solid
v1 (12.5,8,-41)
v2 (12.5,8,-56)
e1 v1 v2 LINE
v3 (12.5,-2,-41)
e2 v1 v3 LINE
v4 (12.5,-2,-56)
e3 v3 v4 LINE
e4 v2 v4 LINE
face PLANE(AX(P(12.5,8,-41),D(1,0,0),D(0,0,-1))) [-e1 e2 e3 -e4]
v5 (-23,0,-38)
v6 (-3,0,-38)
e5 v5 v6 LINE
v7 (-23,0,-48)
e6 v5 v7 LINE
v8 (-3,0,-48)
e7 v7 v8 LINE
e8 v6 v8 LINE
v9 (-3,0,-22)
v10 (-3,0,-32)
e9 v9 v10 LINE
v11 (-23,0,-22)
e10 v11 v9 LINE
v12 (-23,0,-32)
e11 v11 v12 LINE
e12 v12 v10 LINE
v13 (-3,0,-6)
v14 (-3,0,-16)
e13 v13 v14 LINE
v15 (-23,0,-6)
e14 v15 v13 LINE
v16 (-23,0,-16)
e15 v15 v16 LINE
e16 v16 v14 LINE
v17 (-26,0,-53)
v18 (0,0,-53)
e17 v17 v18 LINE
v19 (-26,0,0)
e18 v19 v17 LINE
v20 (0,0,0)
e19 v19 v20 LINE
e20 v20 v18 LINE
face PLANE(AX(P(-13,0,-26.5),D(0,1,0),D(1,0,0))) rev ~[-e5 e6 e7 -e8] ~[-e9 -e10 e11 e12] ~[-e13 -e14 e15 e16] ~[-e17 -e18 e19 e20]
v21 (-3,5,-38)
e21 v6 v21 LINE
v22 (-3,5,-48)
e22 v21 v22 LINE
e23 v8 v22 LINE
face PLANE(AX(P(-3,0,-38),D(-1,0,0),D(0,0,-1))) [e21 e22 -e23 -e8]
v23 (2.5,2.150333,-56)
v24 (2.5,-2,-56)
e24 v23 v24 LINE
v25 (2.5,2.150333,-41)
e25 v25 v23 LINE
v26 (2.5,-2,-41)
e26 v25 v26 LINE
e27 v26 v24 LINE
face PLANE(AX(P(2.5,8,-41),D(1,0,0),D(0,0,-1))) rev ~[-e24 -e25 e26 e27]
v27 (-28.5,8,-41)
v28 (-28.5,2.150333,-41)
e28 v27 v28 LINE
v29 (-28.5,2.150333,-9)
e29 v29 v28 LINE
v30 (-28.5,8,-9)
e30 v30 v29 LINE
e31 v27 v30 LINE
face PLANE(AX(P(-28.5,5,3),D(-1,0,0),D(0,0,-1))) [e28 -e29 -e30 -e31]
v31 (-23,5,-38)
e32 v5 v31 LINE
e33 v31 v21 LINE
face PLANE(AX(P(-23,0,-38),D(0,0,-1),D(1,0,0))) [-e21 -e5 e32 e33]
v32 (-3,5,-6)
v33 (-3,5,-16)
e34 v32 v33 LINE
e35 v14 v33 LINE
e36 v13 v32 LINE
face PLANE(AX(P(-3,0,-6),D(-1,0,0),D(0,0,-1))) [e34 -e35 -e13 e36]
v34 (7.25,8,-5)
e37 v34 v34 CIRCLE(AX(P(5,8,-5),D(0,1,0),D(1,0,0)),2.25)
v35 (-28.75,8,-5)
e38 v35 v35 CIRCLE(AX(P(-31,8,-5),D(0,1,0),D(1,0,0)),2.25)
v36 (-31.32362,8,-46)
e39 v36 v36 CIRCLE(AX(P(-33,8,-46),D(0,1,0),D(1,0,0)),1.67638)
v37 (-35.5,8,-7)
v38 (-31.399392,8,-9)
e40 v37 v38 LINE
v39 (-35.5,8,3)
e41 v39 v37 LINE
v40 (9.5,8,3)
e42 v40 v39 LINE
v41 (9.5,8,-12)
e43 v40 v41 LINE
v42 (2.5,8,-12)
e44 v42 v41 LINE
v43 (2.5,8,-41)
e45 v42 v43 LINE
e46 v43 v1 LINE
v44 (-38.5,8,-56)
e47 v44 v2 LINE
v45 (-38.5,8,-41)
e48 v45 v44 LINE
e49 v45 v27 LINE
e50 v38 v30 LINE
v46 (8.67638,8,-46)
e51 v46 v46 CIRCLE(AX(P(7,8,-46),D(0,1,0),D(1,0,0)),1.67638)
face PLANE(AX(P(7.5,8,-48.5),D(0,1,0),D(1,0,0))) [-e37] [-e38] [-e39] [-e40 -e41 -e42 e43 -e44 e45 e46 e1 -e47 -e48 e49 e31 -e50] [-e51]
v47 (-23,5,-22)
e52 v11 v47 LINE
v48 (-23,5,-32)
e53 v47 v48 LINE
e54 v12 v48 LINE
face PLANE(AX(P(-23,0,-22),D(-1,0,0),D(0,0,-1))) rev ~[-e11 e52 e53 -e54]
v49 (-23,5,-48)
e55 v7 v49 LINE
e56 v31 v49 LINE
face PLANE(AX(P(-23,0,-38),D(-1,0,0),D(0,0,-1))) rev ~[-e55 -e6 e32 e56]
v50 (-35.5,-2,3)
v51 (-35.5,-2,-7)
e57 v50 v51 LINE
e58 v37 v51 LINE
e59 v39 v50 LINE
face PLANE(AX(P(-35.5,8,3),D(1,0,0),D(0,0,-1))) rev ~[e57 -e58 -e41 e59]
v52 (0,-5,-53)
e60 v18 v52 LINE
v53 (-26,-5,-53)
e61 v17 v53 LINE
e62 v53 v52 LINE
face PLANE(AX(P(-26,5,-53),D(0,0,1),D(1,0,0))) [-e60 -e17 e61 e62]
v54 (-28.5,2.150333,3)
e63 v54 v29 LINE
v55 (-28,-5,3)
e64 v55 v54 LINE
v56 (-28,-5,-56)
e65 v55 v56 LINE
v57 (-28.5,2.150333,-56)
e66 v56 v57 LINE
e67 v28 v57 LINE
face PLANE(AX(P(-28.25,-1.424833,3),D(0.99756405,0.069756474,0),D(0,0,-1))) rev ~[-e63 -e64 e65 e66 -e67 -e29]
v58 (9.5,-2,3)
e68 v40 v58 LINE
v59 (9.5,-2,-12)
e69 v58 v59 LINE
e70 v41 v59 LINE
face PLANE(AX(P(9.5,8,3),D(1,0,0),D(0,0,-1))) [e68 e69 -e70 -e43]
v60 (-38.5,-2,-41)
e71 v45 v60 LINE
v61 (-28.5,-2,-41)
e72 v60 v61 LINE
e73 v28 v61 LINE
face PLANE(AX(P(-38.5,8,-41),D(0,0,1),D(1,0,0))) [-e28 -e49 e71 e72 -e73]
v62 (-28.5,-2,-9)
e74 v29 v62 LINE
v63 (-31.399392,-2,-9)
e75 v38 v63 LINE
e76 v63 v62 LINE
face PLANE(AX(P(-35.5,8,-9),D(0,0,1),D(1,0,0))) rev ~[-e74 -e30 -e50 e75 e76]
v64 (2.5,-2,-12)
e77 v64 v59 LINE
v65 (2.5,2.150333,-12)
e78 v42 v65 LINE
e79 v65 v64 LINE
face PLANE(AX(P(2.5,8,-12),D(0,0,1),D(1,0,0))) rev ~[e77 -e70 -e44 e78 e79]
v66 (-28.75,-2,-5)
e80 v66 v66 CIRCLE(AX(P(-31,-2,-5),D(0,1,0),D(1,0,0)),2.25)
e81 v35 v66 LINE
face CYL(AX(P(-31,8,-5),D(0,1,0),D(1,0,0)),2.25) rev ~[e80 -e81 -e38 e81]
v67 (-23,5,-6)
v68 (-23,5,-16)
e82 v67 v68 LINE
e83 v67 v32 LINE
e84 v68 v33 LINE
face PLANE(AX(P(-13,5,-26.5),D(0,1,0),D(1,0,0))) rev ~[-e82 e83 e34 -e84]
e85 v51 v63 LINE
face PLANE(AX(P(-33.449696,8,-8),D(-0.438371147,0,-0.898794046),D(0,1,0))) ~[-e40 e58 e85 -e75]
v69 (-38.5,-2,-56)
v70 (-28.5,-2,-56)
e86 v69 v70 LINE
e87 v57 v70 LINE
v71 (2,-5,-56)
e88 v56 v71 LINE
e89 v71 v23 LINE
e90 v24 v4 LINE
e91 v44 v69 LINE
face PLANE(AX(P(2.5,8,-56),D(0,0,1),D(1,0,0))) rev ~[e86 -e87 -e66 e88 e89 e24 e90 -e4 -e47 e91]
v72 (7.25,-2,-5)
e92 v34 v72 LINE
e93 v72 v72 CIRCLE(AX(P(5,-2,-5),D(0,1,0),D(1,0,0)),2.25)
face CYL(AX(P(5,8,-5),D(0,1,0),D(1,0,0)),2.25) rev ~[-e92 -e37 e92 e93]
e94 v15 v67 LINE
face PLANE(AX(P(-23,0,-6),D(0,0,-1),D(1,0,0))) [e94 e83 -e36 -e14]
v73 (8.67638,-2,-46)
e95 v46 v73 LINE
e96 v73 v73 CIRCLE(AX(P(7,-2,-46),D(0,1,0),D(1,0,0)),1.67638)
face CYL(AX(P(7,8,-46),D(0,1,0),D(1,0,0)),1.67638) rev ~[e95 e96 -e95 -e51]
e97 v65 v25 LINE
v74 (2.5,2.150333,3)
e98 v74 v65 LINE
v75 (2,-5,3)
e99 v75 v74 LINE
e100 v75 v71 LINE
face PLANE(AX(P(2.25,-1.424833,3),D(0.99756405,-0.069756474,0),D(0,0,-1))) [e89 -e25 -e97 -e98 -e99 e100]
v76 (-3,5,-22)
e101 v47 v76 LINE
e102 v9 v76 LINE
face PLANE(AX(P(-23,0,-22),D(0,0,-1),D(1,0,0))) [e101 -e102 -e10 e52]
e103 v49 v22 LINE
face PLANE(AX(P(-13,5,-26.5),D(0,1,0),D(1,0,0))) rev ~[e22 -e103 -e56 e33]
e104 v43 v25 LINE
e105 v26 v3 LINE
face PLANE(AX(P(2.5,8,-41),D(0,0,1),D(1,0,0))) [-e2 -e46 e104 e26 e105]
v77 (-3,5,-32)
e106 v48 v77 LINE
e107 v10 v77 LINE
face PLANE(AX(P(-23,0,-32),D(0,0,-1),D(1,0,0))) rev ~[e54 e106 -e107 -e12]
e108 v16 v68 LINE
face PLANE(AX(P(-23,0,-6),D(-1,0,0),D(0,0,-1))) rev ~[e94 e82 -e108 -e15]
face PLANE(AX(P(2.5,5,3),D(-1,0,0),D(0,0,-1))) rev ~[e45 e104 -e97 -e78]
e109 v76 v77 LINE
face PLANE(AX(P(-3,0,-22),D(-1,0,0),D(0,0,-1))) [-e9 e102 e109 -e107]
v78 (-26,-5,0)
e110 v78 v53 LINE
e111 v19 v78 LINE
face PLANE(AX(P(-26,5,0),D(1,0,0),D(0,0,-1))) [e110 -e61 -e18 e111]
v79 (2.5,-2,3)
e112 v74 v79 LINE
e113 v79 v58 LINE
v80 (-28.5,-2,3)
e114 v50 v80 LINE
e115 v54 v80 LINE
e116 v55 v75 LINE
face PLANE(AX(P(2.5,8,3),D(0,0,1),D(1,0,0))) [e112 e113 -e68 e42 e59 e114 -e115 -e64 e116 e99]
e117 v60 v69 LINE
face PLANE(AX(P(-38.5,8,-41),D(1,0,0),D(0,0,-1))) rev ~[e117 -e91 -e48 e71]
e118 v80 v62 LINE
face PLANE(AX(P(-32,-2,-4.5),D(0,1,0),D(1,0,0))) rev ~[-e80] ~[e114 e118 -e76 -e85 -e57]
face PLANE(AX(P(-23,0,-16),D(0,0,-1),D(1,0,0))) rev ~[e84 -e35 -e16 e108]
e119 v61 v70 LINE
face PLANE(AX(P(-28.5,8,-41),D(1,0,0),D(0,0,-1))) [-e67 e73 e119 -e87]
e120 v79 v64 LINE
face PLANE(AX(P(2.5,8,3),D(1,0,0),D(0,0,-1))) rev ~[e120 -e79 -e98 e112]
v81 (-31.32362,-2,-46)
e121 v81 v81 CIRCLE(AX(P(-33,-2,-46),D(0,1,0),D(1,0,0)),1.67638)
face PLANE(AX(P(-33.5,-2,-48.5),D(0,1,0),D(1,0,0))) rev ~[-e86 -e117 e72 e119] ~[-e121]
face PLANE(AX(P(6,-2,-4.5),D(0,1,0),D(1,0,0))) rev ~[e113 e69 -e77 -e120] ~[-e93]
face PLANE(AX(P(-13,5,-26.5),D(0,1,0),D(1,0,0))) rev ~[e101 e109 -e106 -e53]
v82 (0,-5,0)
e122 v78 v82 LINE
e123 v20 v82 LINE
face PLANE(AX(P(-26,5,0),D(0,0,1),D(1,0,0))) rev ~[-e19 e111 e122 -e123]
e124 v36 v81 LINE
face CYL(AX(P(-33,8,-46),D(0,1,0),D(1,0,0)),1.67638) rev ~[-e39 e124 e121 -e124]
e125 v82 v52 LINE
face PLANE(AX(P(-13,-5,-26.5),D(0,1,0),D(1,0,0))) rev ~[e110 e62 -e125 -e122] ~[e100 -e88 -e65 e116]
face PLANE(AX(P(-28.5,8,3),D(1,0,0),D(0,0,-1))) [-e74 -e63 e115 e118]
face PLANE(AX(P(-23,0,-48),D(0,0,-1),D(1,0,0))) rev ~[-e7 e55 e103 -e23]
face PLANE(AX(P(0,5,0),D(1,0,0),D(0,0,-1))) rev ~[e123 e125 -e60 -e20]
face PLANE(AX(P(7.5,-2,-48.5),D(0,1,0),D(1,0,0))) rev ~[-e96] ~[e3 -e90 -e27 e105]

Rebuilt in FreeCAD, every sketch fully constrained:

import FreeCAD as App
import Part
import Sketcher


def edges_at(feature, points):
    """Names of the edges that pass closest to the given points."""
    edges = feature.Shape.Edges
    near = lambda p: min(range(len(edges)), key=lambda i: edges[i].distToShape(Part.Vertex(*p))[0])
    return sorted({f"Edge{near(p) + 1}" for p in points})


def add_polygon(sketch, points):
    """Adds a closed chain of lines whose ends are joined by coincident constraints."""
    first, n = sketch.GeometryCount, len(points)
    for a, b in zip(points, points[1:] + points[:1]):
        sketch.addGeometry(Part.LineSegment(App.Vector(*a, 0), App.Vector(*b, 0)), False)
    for i in range(n):
        sketch.addConstraint(Sketcher.Constraint("Coincident", first + i, 2, first + (i + 1) % n, 1))

doc = App.newDocument("Part")
body = doc.addObject("PartDesign::Body", "Body")

sketch1 = body.newObject("Sketcher::SketchObject", "Sketch")
sketch1.AttachmentSupport = (doc.getObject("XZ_Plane"), [""])
sketch1.MapMode = "FlatFace"
add_polygon(sketch1, [(-26, -53), (-26, 0), (0, 0), (0, -53)])
add_polygon(sketch1, [(-3, -6), (-23, -6), (-23, -16), (-3, -16)])
add_polygon(sketch1, [(-3, -22), (-23, -22), (-23, -32), (-3, -32)])
add_polygon(sketch1, [(-3, -38), (-23, -38), (-23, -48), (-3, -48)])
sketch1.addConstraint([
    Sketcher.Constraint("Vertical", 0),
    Sketcher.Constraint("Horizontal", 1),
    Sketcher.Constraint("Vertical", 2),
    Sketcher.Constraint("Horizontal", 3),
    Sketcher.Constraint("Horizontal", 4),
    Sketcher.Constraint("Vertical", 5),
    Sketcher.Constraint("Horizontal", 6),
    Sketcher.Constraint("Vertical", 7),
    Sketcher.Constraint("Horizontal", 8),
    Sketcher.Constraint("Vertical", 9),
    Sketcher.Constraint("Horizontal", 10),
    Sketcher.Constraint("Vertical", 11),
    Sketcher.Constraint("Horizontal", 12),
    Sketcher.Constraint("Vertical", 13),
    Sketcher.Constraint("Horizontal", 14),
    Sketcher.Constraint("Vertical", 15),
    Sketcher.Constraint("Coincident", 1, 2, -1, 1),
    Sketcher.Constraint("Vertical", 5, 2, 8, 2),
    Sketcher.Constraint("Vertical", 7, 2, 10, 2),
    Sketcher.Constraint("Vertical", 9, 2, 12, 2),
    Sketcher.Constraint("Vertical", 11, 2, 14, 2),
    Sketcher.Constraint("Equal", 7, 9),
    Sketcher.Constraint("Equal", 11, 13),
    Sketcher.Constraint("DistanceX", 1, 1, 1, 2, 26.0),
    Sketcher.Constraint("DistanceX", 4, 2, 4, 1, 20.0),
    Sketcher.Constraint("DistanceY", 0, 1, 0, 2, 53.0),
    Sketcher.Constraint("DistanceY", 5, 2, 5, 1, 10.0),
    Sketcher.Constraint("DistanceX", 4, 2, -1, 1, 23.0),
    Sketcher.Constraint("DistanceY", 4, 2, -1, 1, 6.0),
    Sketcher.Constraint("DistanceY", 8, 2, -1, 1, 22.0),
    Sketcher.Constraint("DistanceY", 12, 2, -1, 1, 38.0),
])
pad1 = body.newObject("PartDesign::Pad", "Pad")
pad1.Profile = sketch1
pad1.Length = 5
pad1.Reversed = True

sketch2 = body.newObject("Sketcher::SketchObject", "Sketch001")
sketch2.AttachmentSupport = (doc.getObject("XZ_Plane"), [""])
sketch2.MapMode = "FlatFace"
sketch2.AttachmentOffset = App.Placement(App.Vector(0, 0, -5), App.Rotation())
add_polygon(sketch2, [(-28.5, -56), (-28.5, 3), (2.5, 3), (2.5, -56)])
add_polygon(sketch2, [(0, 0), (-26, 0), (-26, -53), (0, -53)])
sketch2.addConstraint([
    Sketcher.Constraint("Vertical", 0),
    Sketcher.Constraint("Horizontal", 1),
    Sketcher.Constraint("Vertical", 2),
    Sketcher.Constraint("Horizontal", 3),
    Sketcher.Constraint("Horizontal", 4),
    Sketcher.Constraint("Vertical", 5),
    Sketcher.Constraint("Horizontal", 6),
    Sketcher.Constraint("Vertical", 7),
    Sketcher.Constraint("Coincident", 7, 2, -1, 1),
    Sketcher.Constraint("DistanceX", 1, 1, 1, 2, 31.0),
    Sketcher.Constraint("DistanceX", 4, 2, 4, 1, 26.0),
    Sketcher.Constraint("DistanceY", 0, 1, 0, 2, 59.0),
    Sketcher.Constraint("DistanceY", 5, 2, 5, 1, 53.0),
    Sketcher.Constraint("DistanceY", -1, 1, 0, 2, 3.0),
    Sketcher.Constraint("DistanceX", 0, 2, -1, 1, 28.5),
])
pad2 = body.newObject("PartDesign::Pad", "Pad001")
pad2.Profile = sketch2
pad2.Length = 10

sketch3 = body.newObject("Sketcher::SketchObject", "Sketch002")
sketch3.AttachmentSupport = (doc.getObject("XZ_Plane"), [""])
sketch3.MapMode = "FlatFace"
sketch3.AttachmentOffset = App.Placement(App.Vector(0, 0, -5), App.Rotation())
add_polygon(sketch3, [(-28.5, -56), (-28.5, 3), (2.5, 3), (2.5, -56)])
sketch3.addConstraint([
    Sketcher.Constraint("Vertical", 0),
    Sketcher.Constraint("Horizontal", 1),
    Sketcher.Constraint("Vertical", 2),
    Sketcher.Constraint("Horizontal", 3),
    Sketcher.Constraint("DistanceX", 1, 1, 1, 2, 31.0),
    Sketcher.Constraint("DistanceY", 0, 1, 0, 2, 59.0),
    Sketcher.Constraint("DistanceY", -1, 1, 0, 2, 3.0),
    Sketcher.Constraint("DistanceX", 0, 2, -1, 1, 28.5),
])
pad3 = body.newObject("PartDesign::Pad", "Pad002")
pad3.Profile = sketch3
pad3.Length = 3
pad3.Reversed = True
doc.recompute()

chamfer = body.newObject("PartDesign::Chamfer", "Chamfer")
chamfer.Base = (pad3, edges_at(pad3, [(-28.5, -5, -26.5), (2.5, -5, -26.5)]))
chamfer.ChamferType = "Two distances"
chamfer.Size = 0.5
chamfer.Size2 = 7.150333

sketch4 = body.newObject("Sketcher::SketchObject", "Sketch003")
sketch4.AttachmentSupport = (doc.getObject("XZ_Plane"), [""])
sketch4.MapMode = "FlatFace"
sketch4.AttachmentOffset = App.Placement(App.Vector(0, 0, -8), App.Rotation())
add_polygon(sketch4, [(2.5, -12), (2.5, 3), (9.5, 3), (9.5, -12)])
sketch4.addGeometry(Part.Circle(App.Vector(5, -5, 0), App.Vector(0, 0, 1), 2.25), False)
add_polygon(sketch4, [(-35.5, -12), (-35.5, 3), (-28.5, 3), (-28.5, -12)])
sketch4.addGeometry(Part.Circle(App.Vector(-31, -5, 0), App.Vector(0, 0, 1), 2.25), False)
sketch4.addConstraint([
    Sketcher.Constraint("Vertical", 0),
    Sketcher.Constraint("Horizontal", 1),
    Sketcher.Constraint("Vertical", 2),
    Sketcher.Constraint("Horizontal", 3),
    Sketcher.Constraint("Vertical", 5),
    Sketcher.Constraint("Horizontal", 6),
    Sketcher.Constraint("Vertical", 7),
    Sketcher.Constraint("Horizontal", 8),
    Sketcher.Constraint("Equal", 4, 9),
    Sketcher.Constraint("Horizontal", 4, 3, 9, 3),
    Sketcher.Constraint("Horizontal", 1, 2, 5, 2),
    Sketcher.Constraint("Horizontal", 3, 2, 7, 2),
    Sketcher.Constraint("Equal", 3, 6),
    Sketcher.Constraint("Diameter", 4, 4.5),
    Sketcher.Constraint("DistanceX", 1, 1, 1, 2, 7.0),
    Sketcher.Constraint("DistanceY", 0, 1, 0, 2, 15.0),
    Sketcher.Constraint("DistanceX", -1, 1, 4, 3, 5.0),
    Sketcher.Constraint("DistanceY", 4, 3, -1, 1, 5.0),
    Sketcher.Constraint("DistanceX", 9, 3, -1, 1, 31.0),
    Sketcher.Constraint("DistanceY", -1, 1, 0, 2, 3.0),
    Sketcher.Constraint("DistanceX", 5, 2, 0, 2, 38.0),
    Sketcher.Constraint("DistanceX", -1, 1, 0, 2, 2.5),
])
pad4 = body.newObject("PartDesign::Pad", "Pad003")
pad4.Profile = sketch4
pad4.Length = 10

sketch5 = body.newObject("Sketcher::SketchObject", "Sketch004")
sketch5.AttachmentSupport = (doc.getObject("XZ_Plane"), [""])
sketch5.MapMode = "FlatFace"
sketch5.AttachmentOffset = App.Placement(App.Vector(0, 0, -8), App.Rotation())
add_polygon(sketch5, [(-35.5, -12), (-35.5, -9), (-28.5, -9), (-28.5, -12)])
sketch5.addConstraint([
    Sketcher.Constraint("Vertical", 0),
    Sketcher.Constraint("Horizontal", 1),
    Sketcher.Constraint("Vertical", 2),
    Sketcher.Constraint("Horizontal", 3),
    Sketcher.Constraint("DistanceX", 1, 1, 1, 2, 7.0),
    Sketcher.Constraint("DistanceY", 0, 1, 0, 2, 3.0),
    Sketcher.Constraint("DistanceY", 0, 2, -1, 1, 9.0),
    Sketcher.Constraint("DistanceX", 0, 2, -1, 1, 35.5),
])
pocket1 = body.newObject("PartDesign::Pocket", "Pocket")
pocket1.Profile = sketch5
pocket1.Length = 10
pocket1.Reversed = True
doc.recompute()

chamfer2 = body.newObject("PartDesign::Chamfer", "Chamfer001")
chamfer2.Base = (pocket1, edges_at(pocket1, [(-35.5, 3, -9)]))
chamfer2.ChamferType = "Two distances"
chamfer2.Size = 2
chamfer2.Size2 = 4.100608

sketch6 = body.newObject("Sketcher::SketchObject", "Sketch005")
sketch6.AttachmentSupport = (doc.getObject("XZ_Plane"), [""])
sketch6.MapMode = "FlatFace"
sketch6.AttachmentOffset = App.Placement(App.Vector(0, 0, -8), App.Rotation())
add_polygon(sketch6, [(2.5, -56), (2.5, -41), (12.5, -41), (12.5, -56)])
sketch6.addGeometry(Part.Circle(App.Vector(7, -46, 0), App.Vector(0, 0, 1), 1.67638), False)
add_polygon(sketch6, [(-38.5, -56), (-38.5, -41), (-28.5, -41), (-28.5, -56)])
sketch6.addGeometry(Part.Circle(App.Vector(-33, -46, 0), App.Vector(0, 0, 1), 1.67638), False)
sketch6.addConstraint([
    Sketcher.Constraint("Vertical", 0),
    Sketcher.Constraint("Horizontal", 1),
    Sketcher.Constraint("Vertical", 2),
    Sketcher.Constraint("Horizontal", 3),
    Sketcher.Constraint("Vertical", 5),
    Sketcher.Constraint("Horizontal", 6),
    Sketcher.Constraint("Vertical", 7),
    Sketcher.Constraint("Horizontal", 8),
    Sketcher.Constraint("Equal", 4, 9),
    Sketcher.Constraint("Horizontal", 4, 3, 9, 3),
    Sketcher.Constraint("Horizontal", 1, 2, 5, 2),
    Sketcher.Constraint("Horizontal", 3, 2, 7, 2),
    Sketcher.Constraint("Equal", 3, 6),
    Sketcher.Constraint("DistanceX", 1, 1, 1, 2, 10.0),
    Sketcher.Constraint("DistanceY", 0, 1, 0, 2, 15.0),
    Sketcher.Constraint("DistanceX", -1, 1, 4, 3, 7.0),
    Sketcher.Constraint("DistanceY", 4, 3, -1, 1, 46.0),
    Sketcher.Constraint("DistanceX", 9, 3, -1, 1, 33.0),
    Sketcher.Constraint("DistanceY", 0, 2, -1, 1, 41.0),
    Sketcher.Constraint("DistanceX", 5, 2, 0, 2, 41.0),
    Sketcher.Constraint("DistanceX", -1, 1, 0, 2, 2.5),
    Sketcher.Constraint("Diameter", 4, 3.35276),
])
pad5 = body.newObject("PartDesign::Pad", "Pad004")
pad5.Profile = sketch6
pad5.Length = 10

doc.recompute()
